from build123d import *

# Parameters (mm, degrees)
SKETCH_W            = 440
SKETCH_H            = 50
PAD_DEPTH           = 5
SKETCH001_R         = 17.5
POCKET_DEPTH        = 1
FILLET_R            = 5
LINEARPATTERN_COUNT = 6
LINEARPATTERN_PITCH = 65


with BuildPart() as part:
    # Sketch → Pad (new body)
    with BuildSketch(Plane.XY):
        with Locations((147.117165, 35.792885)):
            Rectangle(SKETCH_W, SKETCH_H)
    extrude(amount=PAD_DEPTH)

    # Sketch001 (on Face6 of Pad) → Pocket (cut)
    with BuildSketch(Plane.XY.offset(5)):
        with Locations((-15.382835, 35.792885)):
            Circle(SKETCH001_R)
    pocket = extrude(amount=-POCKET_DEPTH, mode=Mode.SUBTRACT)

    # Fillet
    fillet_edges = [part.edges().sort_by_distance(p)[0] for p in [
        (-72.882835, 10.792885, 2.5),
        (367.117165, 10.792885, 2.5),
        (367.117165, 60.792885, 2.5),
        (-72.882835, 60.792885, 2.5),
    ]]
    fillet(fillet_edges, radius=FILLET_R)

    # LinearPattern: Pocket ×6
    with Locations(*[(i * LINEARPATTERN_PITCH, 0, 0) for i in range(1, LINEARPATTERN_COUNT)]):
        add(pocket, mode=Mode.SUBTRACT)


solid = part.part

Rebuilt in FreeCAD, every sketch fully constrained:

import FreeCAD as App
import Part
import Sketcher


def edges_at(feature, points):
    """Names of the edges that pass closest to the given points."""
    edges = feature.Shape.Edges
    near = lambda p: min(range(len(edges)), key=lambda i: edges[i].distToShape(Part.Vertex(*p))[0])
    return sorted({f"Edge{near(p) + 1}" for p in points})

doc = App.newDocument("Part")
body = doc.addObject("PartDesign::Body", "Body")

# Sketch on XY plane
sketch1 = doc.addObject("Sketcher::SketchObject", "Sketch")
body.addObject(sketch1)
sketch1.AttachmentSupport = (doc.XY_Plane, [""])
sketch1.MapMode = "FlatFace"
sketch1.addGeometry(Part.LineSegment(App.Vector(-73, 61, 0), App.Vector(-73, 11, 0)), False)
sketch1.addGeometry(Part.LineSegment(App.Vector(-73, 11, 0), App.Vector(367, 11, 0)), False)
sketch1.addGeometry(Part.LineSegment(App.Vector(367, 11, 0), App.Vector(367, 61, 0)), False)
sketch1.addGeometry(Part.LineSegment(App.Vector(367, 61, 0), App.Vector(-73, 61, 0)), False)
sketch1.addConstraint(Sketcher.Constraint("Coincident", 0, 2, 1, 1))
sketch1.addConstraint(Sketcher.Constraint("Coincident", 1, 2, 2, 1))
sketch1.addConstraint(Sketcher.Constraint("Coincident", 2, 2, 3, 1))
sketch1.addConstraint(Sketcher.Constraint("Coincident", 3, 2, 0, 1))
sketch1.addConstraint(Sketcher.Constraint("Vertical", 0))
sketch1.addConstraint(Sketcher.Constraint("Horizontal", 1))
sketch1.addConstraint(Sketcher.Constraint("Vertical", 2))
sketch1.addConstraint(Sketcher.Constraint("Horizontal", 3))
sketch1.addConstraint(Sketcher.Constraint("DistanceX", 1, 1, 1, 2, 440.0))
sketch1.addConstraint(Sketcher.Constraint("DistanceY", 0, 2, 0, 1, 50.0))
sketch1.addConstraint(Sketcher.Constraint("DistanceX", 0, 2, -1, 1, 72.882835))
sketch1.addConstraint(Sketcher.Constraint("DistanceY", -1, 1, 0, 2, 10.792885))
pad1 = doc.addObject("PartDesign::Pad", "Pad")
body.addObject(pad1)
pad1.Profile = sketch1
pad1.Length = 5

# Sketch on XY plane
sketch2 = doc.addObject("Sketcher::SketchObject", "Sketch001")
body.addObject(sketch2)
sketch2.AttachmentSupport = (doc.XY_Plane, [""])
sketch2.MapMode = "FlatFace"
sketch2.AttachmentOffset = App.Placement(App.Vector(0, 0, 5), App.Rotation())
sketch2.addGeometry(Part.Circle(App.Vector(-15, 36, 0), App.Vector(0, 0, 1), 18), False)
sketch2.addConstraint(Sketcher.Constraint("Diameter", 0, 35.0))
sketch2.addConstraint(Sketcher.Constraint("DistanceX", 0, 3, -1, 1, 15.382835))
sketch2.addConstraint(Sketcher.Constraint("DistanceY", -1, 1, 0, 3, 35.792885))
pocket1 = doc.addObject("PartDesign::Pocket", "Pocket")
body.addObject(pocket1)
pocket1.Profile = sketch2
pocket1.Length = 1
doc.recompute()

fillet = doc.addObject("PartDesign::Fillet", "Fillet")
body.addObject(fillet)
fillet.Base = (pocket1, edges_at(pocket1, [
    (-72.883, 10.793, 2.5),
    (367.117, 10.793, 2.5),
    (367.117, 60.793, 2.5),
    (-72.883, 60.793, 2.5),
]))
fillet.Radius = 5
doc.recompute()

linearpattern = doc.addObject("PartDesign::LinearPattern", "LinearPattern")
body.addObject(linearpattern)
linearpattern.Originals = [pocket1]
linearpattern.Direction = (doc.X_Axis, [""])
linearpattern.Mode = "offset"
linearpattern.Offset = 65
linearpattern.Occurrences = 6
body.Tip = linearpattern

doc.recompute()
